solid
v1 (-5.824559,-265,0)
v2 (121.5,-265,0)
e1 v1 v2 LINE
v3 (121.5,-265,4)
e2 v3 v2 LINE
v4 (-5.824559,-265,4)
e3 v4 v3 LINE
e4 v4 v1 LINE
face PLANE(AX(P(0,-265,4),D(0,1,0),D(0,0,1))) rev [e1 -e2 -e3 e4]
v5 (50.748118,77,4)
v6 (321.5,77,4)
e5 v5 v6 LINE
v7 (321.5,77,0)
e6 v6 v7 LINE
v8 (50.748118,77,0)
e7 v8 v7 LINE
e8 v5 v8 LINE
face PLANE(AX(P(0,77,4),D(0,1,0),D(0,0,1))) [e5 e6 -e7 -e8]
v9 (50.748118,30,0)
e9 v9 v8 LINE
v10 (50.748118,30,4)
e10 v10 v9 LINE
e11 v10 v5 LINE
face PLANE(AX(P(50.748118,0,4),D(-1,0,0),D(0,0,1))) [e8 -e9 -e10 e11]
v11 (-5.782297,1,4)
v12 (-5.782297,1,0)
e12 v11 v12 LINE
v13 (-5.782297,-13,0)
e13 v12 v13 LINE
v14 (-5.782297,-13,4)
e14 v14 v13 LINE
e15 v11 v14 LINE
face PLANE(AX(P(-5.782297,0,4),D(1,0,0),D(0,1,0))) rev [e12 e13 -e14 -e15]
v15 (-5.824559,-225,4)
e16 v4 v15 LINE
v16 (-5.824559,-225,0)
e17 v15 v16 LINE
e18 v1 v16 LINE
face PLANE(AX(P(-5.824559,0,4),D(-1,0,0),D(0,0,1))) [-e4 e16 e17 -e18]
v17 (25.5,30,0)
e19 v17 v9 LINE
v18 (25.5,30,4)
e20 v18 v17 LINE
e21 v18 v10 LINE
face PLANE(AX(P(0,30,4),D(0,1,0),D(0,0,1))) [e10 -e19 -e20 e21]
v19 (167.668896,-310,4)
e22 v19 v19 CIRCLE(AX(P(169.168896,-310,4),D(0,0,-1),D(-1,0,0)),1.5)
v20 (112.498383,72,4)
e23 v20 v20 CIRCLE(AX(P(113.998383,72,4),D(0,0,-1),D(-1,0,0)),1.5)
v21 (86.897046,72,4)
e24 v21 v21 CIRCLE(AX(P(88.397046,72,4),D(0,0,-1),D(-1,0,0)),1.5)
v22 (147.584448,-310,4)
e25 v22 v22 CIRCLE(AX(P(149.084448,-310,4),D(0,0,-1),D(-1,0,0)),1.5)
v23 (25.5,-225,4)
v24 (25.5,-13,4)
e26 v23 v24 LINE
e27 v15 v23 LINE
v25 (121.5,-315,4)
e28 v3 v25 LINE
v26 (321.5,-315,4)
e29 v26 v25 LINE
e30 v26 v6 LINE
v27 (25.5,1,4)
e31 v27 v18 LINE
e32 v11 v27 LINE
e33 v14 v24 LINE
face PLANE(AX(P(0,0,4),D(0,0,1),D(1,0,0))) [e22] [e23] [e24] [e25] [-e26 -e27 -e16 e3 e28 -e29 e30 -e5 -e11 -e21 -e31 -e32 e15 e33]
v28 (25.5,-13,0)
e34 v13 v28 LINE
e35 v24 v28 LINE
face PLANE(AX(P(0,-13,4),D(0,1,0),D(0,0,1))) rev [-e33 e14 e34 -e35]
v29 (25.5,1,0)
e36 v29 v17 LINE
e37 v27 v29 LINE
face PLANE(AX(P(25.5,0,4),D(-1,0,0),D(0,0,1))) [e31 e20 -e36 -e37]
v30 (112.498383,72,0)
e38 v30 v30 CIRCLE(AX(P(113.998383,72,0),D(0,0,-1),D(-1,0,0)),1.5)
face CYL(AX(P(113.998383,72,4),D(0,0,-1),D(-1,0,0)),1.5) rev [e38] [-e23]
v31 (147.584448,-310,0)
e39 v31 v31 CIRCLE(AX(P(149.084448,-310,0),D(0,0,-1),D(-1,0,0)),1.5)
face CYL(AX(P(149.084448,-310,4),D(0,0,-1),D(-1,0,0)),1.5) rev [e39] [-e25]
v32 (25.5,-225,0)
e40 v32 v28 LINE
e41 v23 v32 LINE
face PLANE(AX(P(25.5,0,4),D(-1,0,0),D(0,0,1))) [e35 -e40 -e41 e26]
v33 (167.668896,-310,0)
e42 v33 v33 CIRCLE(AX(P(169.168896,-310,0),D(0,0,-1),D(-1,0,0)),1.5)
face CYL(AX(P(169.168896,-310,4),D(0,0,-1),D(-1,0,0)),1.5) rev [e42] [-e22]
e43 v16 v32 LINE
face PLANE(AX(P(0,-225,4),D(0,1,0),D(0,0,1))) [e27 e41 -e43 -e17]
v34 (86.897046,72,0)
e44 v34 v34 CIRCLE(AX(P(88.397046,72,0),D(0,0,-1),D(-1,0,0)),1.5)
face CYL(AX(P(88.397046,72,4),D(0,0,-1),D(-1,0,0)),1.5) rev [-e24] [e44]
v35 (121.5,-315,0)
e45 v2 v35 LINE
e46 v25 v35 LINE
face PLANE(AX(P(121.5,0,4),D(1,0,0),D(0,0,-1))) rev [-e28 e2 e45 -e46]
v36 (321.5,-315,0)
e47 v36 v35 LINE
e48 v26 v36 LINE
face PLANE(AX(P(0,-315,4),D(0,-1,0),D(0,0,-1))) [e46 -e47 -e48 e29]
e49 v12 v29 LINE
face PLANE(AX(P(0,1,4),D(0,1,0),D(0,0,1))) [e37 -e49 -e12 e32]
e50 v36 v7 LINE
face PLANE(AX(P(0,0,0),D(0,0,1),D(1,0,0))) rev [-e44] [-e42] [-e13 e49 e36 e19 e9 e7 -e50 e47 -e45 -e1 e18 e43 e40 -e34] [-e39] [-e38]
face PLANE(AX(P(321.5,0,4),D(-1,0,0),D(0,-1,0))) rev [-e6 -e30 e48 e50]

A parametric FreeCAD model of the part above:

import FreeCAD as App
import Part
import Sketcher

doc = App.newDocument("Part")
body = doc.addObject("PartDesign::Body", "Body")

sketch1 = doc.addObject("Sketcher::SketchObject", "Sketch")
body.addObject(sketch1)
sketch1.AttachmentSupport = (doc.XY_Plane, [""])
sketch1.MapMode = "FlatFace"
sketch1.addGeometry(Part.LineSegment(App.Vector(322, -265, 0), App.Vector(322, 77, 0)), False)
sketch1.addGeometry(Part.LineSegment(App.Vector(322, 77, 0), App.Vector(51, 77, 0)), False)
sketch1.addGeometry(Part.LineSegment(App.Vector(51, 77, 0), App.Vector(51, 30, 0)), False)
sketch1.addGeometry(Part.LineSegment(App.Vector(51, 30, 0), App.Vector(26, 30, 0)), False)
sketch1.addGeometry(Part.LineSegment(App.Vector(26, 30, 0), App.Vector(26, 1, 0)), False)
sketch1.addGeometry(Part.LineSegment(App.Vector(25, 1, 0), App.Vector(-6, 1, 0)), False)
sketch1.addGeometry(Part.LineSegment(App.Vector(-6, 1, 0), App.Vector(-6, -13, 0)), False)
sketch1.addGeometry(Part.LineSegment(App.Vector(-6, -13, 0), App.Vector(25, -13, 0)), False)
sketch1.addGeometry(Part.LineSegment(App.Vector(26, -13, 0), App.Vector(26, -225, 0)), False)
sketch1.addGeometry(Part.LineSegment(App.Vector(26, -225, 0), App.Vector(-6, -225, 0)), False)
sketch1.addGeometry(Part.LineSegment(App.Vector(-6, -225, 0), App.Vector(-6, -265, 0)), False)
sketch1.addGeometry(Part.LineSegment(App.Vector(-6, -265, 0), App.Vector(122, -265, 0)), False)
sketch1.addGeometry(Part.LineSegment(App.Vector(122, -265, 0), App.Vector(122, -315, 0)), False)
sketch1.addGeometry(Part.LineSegment(App.Vector(122, -315, 0), App.Vector(322, -315, 0)), False)
sketch1.addGeometry(Part.LineSegment(App.Vector(322, -315, 0), App.Vector(322, -265, 0)), False)
sketch1.addConstraint(Sketcher.Constraint("Coincident", 0, 2, 1, 1))
sketch1.addConstraint(Sketcher.Constraint("Coincident", 1, 2, 2, 1))
sketch1.addConstraint(Sketcher.Constraint("Coincident", 2, 2, 3, 1))
sketch1.addConstraint(Sketcher.Constraint("Coincident", 3, 2, 4, 1))
sketch1.addConstraint(Sketcher.Constraint("Coincident", 4, 2, 5, 1))
sketch1.addConstraint(Sketcher.Constraint("Coincident", 5, 2, 6, 1))
sketch1.addConstraint(Sketcher.Constraint("Coincident", 6, 2, 7, 1))
sketch1.addConstraint(Sketcher.Constraint("Coincident", 7, 2, 8, 1))
sketch1.addConstraint(Sketcher.Constraint("Coincident", 8, 2, 9, 1))
sketch1.addConstraint(Sketcher.Constraint("Coincident", 9, 2, 10, 1))
sketch1.addConstraint(Sketcher.Constraint("Coincident", 10, 2, 11, 1))
sketch1.addConstraint(Sketcher.Constraint("Coincident", 11, 2, 12, 1))
sketch1.addConstraint(Sketcher.Constraint("Coincident", 12, 2, 13, 1))
sketch1.addConstraint(Sketcher.Constraint("Coincident", 13, 2, 14, 1))
sketch1.addConstraint(Sketcher.Constraint("Coincident", 14, 2, 0, 1))
sketch1.addConstraint(Sketcher.Constraint("Vertical", 0))
sketch1.addConstraint(Sketcher.Constraint("Horizontal", 1))
sketch1.addConstraint(Sketcher.Constraint("Vertical", 2))
sketch1.addConstraint(Sketcher.Constraint("Horizontal", 3))
sketch1.addConstraint(Sketcher.Constraint("Vertical", 4))
sketch1.addConstraint(Sketcher.Constraint("Horizontal", 5))
sketch1.addConstraint(Sketcher.Constraint("Vertical", 6))
sketch1.addConstraint(Sketcher.Constraint("Horizontal", 7))
sketch1.addConstraint(Sketcher.Constraint("Vertical", 8))
sketch1.addConstraint(Sketcher.Constraint("Horizontal", 9))
sketch1.addConstraint(Sketcher.Constraint("Vertical", 10))
sketch1.addConstraint(Sketcher.Constraint("Horizontal", 11))
sketch1.addConstraint(Sketcher.Constraint("Vertical", 12))
sketch1.addConstraint(Sketcher.Constraint("Horizontal", 13))
sketch1.addConstraint(Sketcher.Constraint("Vertical", 14))
sketch1.addConstraint(Sketcher.Constraint("Horizontal", 11, 2, 14, 2))
sketch1.addConstraint(Sketcher.Constraint("Vertical", 4, 2, 7, 2))
sketch1.addConstraint(Sketcher.Constraint("DistanceX", 13, 1, 13, 2, 200.0))
sketch1.addConstraint(Sketcher.Constraint("DistanceY", 0, 1, 0, 2, 342.0))
sketch1.addConstraint(Sketcher.Constraint("DistanceY", 2, 2, 2, 1, 47.0))
sketch1.addConstraint(Sketcher.Constraint("DistanceY", 4, 2, 4, 1, 29.0))
sketch1.addConstraint(Sketcher.Constraint("DistanceY", 6, 2, 6, 1, 14.0))
sketch1.addConstraint(Sketcher.Constraint("DistanceY", 8, 2, 8, 1, 212.0))
sketch1.addConstraint(Sketcher.Constraint("DistanceY", 12, 2, 12, 1, 50.0))
sketch1.addConstraint(Sketcher.Constraint("DistanceY", -1, 1, 0, 2, 77.0))
sketch1.addConstraint(Sketcher.Constraint("DistanceX", 3, 2, 0, 2, 296.0))
sketch1.addConstraint(Sketcher.Constraint("DistanceX", -1, 1, 0, 2, 321.5))
sketch1.addConstraint(Sketcher.Constraint("DistanceX", 9, 2, 9, 1, 31.324559))
sketch1.addConstraint(Sketcher.Constraint("DistanceX", 1, 2, 1, 1, 270.751882))
sketch1.addConstraint(Sketcher.Constraint("DistanceX", 5, 2, 5, 1, 31.282297))
pad1 = doc.addObject("PartDesign::Pad", "Pad")
body.addObject(pad1)
pad1.Profile = sketch1
pad1.Length = 4

sketch2 = doc.addObject("Sketcher::SketchObject", "Sketch001")
body.addObject(sketch2)
sketch2.AttachmentSupport = (doc.XY_Plane, [""])
sketch2.MapMode = "FlatFace"
sketch2.addGeometry(Part.Circle(App.Vector(114, 72, 0), App.Vector(0, 0, 1), 1.5), False)
sketch2.addGeometry(Part.Circle(App.Vector(88.4, 72, 0), App.Vector(0, 0, 1), 1.5), False)
sketch2.addGeometry(Part.Circle(App.Vector(169.2, -310, 0), App.Vector(0, 0, 1), 1.5), False)
sketch2.addGeometry(Part.Circle(App.Vector(149.1, -310, 0), App.Vector(0, 0, 1), 1.5), False)
sketch2.addConstraint(Sketcher.Constraint("Equal", 0, 1))
sketch2.addConstraint(Sketcher.Constraint("Equal", 1, 2))
sketch2.addConstraint(Sketcher.Constraint("Equal", 2, 3))
sketch2.addConstraint(Sketcher.Constraint("Horizontal", 0, 3, 1, 3))
sketch2.addConstraint(Sketcher.Constraint("Horizontal", 2, 3, 3, 3))
sketch2.addConstraint(Sketcher.Constraint("Diameter", 0, 3.0))
sketch2.addConstraint(Sketcher.Constraint("DistanceY", -1, 1, 0, 3, 72.0))
sketch2.addConstraint(Sketcher.Constraint("DistanceY", 2, 3, -1, 1, 310.0))
sketch2.addConstraint(Sketcher.Constraint("DistanceX", 1, 3, 2, 3, 80.77185))
sketch2.addConstraint(Sketcher.Constraint("DistanceX", -1, 1, 0, 3, 113.998383))
sketch2.addConstraint(Sketcher.Constraint("DistanceX", -1, 1, 1, 3, 88.397046))
sketch2.addConstraint(Sketcher.Constraint("DistanceX", -1, 1, 3, 3, 149.084448))
pocket1 = doc.addObject("PartDesign::Pocket", "Pocket")
body.addObject(pocket1)
pocket1.Profile = sketch2
pocket1.Type = "ThroughAll"
pocket1.Reversed = True

doc.recompute()
